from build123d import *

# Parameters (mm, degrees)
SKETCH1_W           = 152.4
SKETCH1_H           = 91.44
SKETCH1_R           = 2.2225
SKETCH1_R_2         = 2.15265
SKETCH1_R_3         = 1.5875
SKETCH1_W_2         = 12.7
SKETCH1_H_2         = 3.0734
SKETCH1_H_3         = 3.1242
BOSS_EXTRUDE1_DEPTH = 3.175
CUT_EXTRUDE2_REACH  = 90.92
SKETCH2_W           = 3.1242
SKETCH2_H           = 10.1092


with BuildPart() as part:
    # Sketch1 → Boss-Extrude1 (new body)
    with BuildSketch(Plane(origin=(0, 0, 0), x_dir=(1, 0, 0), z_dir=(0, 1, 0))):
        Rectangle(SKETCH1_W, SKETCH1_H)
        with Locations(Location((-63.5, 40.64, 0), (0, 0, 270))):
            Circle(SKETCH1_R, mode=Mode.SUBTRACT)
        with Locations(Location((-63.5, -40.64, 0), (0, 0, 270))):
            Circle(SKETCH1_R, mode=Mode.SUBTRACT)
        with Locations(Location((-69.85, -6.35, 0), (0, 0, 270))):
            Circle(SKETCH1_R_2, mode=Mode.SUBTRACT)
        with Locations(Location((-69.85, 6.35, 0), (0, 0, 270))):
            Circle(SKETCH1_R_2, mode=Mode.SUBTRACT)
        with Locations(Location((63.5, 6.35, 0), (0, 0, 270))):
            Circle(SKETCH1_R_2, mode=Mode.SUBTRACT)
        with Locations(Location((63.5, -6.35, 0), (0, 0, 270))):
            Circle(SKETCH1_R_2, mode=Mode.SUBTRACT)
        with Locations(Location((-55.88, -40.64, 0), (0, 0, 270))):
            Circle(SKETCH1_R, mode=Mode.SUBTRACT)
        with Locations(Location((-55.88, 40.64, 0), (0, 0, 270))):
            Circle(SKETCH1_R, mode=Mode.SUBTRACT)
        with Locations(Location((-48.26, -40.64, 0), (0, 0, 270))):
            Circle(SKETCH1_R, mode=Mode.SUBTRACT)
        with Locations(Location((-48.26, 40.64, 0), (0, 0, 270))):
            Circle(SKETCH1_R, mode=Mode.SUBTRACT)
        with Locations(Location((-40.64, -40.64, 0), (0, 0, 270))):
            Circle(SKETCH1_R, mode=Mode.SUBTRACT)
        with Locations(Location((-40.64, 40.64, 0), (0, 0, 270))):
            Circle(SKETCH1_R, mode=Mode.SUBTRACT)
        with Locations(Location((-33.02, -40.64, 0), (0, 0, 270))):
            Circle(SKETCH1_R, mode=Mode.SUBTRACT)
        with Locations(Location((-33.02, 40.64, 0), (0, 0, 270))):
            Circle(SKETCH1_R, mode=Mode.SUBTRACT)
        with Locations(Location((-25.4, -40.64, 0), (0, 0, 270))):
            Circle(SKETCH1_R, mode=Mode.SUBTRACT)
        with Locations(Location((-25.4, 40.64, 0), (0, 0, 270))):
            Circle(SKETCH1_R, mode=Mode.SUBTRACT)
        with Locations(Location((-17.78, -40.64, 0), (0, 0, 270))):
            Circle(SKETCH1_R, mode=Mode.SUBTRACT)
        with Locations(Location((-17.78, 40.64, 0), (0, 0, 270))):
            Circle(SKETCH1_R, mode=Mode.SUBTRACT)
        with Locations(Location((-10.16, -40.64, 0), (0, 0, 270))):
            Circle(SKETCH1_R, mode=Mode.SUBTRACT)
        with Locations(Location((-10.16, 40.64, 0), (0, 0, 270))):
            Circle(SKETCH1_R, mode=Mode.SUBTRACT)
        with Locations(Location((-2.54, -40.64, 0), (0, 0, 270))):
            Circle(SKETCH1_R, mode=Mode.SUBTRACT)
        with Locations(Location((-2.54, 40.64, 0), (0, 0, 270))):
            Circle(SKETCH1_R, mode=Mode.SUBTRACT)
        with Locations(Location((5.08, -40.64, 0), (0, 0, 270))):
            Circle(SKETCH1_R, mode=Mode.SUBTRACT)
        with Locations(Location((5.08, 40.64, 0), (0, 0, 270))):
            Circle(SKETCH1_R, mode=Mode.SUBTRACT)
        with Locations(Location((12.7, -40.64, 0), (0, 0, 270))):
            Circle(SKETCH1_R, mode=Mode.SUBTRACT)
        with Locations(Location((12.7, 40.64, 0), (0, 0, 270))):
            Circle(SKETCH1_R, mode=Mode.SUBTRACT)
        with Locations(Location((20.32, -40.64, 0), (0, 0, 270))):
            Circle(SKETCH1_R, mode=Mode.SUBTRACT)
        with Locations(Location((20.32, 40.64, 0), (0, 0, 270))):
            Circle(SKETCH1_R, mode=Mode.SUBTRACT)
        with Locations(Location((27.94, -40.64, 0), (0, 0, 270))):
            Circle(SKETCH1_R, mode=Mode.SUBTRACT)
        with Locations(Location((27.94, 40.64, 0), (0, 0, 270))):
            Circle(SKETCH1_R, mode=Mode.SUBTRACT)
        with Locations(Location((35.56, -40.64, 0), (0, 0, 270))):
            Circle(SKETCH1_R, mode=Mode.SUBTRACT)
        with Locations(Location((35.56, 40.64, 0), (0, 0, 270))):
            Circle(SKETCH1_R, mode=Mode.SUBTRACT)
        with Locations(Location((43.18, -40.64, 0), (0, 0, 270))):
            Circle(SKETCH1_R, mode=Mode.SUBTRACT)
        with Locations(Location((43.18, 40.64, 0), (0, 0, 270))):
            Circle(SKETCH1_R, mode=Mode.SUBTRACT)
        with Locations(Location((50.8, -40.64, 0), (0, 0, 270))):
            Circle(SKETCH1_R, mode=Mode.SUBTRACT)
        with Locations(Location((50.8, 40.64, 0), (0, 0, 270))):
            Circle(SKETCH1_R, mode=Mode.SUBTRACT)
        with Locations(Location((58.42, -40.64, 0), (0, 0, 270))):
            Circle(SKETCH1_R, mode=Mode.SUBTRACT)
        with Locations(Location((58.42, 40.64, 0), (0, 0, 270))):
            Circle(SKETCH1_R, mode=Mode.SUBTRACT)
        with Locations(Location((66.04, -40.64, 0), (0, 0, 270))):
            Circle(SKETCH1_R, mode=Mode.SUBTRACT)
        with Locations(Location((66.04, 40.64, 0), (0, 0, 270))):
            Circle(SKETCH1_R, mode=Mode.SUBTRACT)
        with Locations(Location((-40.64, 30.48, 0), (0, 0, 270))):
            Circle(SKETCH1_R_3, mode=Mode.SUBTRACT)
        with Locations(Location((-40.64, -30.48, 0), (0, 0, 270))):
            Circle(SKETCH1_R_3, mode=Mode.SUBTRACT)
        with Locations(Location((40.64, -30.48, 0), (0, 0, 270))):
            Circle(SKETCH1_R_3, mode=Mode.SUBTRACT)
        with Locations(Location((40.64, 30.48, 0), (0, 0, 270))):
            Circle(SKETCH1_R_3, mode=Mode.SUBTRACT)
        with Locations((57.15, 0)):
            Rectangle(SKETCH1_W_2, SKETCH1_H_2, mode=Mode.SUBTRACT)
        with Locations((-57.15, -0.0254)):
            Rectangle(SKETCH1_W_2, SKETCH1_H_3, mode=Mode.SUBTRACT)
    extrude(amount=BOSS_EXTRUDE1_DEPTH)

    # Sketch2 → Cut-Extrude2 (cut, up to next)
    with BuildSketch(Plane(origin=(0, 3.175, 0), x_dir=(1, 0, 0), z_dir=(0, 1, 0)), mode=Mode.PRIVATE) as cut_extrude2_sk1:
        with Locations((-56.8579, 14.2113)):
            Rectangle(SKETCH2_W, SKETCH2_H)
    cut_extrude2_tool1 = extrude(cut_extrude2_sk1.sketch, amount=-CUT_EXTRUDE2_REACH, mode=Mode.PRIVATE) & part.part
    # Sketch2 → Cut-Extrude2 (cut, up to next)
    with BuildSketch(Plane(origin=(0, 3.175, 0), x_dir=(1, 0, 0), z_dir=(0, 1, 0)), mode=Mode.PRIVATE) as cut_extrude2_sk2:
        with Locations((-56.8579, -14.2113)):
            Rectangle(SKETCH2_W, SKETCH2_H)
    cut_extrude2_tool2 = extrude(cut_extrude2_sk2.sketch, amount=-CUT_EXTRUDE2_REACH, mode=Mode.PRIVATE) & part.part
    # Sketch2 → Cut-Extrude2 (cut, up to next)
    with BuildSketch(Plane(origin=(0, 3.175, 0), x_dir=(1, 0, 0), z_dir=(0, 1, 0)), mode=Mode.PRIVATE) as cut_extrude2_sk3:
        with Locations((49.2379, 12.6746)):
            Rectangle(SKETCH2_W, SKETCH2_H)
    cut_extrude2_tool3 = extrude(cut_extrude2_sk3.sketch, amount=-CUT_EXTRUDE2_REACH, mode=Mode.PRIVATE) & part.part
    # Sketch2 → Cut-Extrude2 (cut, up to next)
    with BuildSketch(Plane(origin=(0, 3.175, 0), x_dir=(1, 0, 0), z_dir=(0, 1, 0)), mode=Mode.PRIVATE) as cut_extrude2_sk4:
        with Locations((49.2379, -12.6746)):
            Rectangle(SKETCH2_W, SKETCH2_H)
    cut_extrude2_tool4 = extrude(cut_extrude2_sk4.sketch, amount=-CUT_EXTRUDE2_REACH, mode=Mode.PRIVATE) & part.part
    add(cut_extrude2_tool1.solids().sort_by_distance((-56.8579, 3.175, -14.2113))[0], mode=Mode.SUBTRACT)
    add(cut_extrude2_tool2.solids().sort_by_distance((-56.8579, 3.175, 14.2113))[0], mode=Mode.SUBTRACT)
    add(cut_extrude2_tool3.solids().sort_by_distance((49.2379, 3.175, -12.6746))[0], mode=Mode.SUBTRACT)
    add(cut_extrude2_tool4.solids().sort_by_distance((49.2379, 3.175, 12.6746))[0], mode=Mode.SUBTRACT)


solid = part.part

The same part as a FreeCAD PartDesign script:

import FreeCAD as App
import Part
import Sketcher
Q = App.Units.Quantity


def add_polygon(sketch, points):
    """Adds a closed chain of lines whose ends are joined by coincident constraints."""
    first, n = sketch.GeometryCount, len(points)
    for a, b in zip(points, points[1:] + points[:1]):
        sketch.addGeometry(Part.LineSegment(App.Vector(*a, 0), App.Vector(*b, 0)), False)
    for i in range(n):
        sketch.addConstraint(Sketcher.Constraint("Coincident", first + i, 2, first + (i + 1) % n, 1))

doc = App.newDocument("Part")
params = doc.addObject("Spreadsheet::Sheet", "Params")
for row, (alias, value) in enumerate([
    ("sketch1_width", "6 in"),
    ("sketch1_diameter", "0.175 in"),
    ("sketch1_diameter2", "0.125 in"),
    ("sketch1_width2", "0.5 in"),
    ("sketch1_height", "3.6 in"),
    ("pad1_length", "0.125 in"),
    ("sketch2_width", "0.123 in"),
    ("sketch2_height", "0.398 in"),
    ("sketch3_width", "0.123 in"),
    ("sketch3_height", "0.398 in"),
    ("sketch4_width", "0.123 in"),
    ("sketch4_height", "0.398 in"),
    ("sketch5_width", "0.123 in"),
    ("sketch5_height", "0.398 in"),
], start=1):
    params.set(f"A{row}", alias)
    params.set(f"B{row}", "=" + value)
    params.setAlias(f"B{row}", alias)

body = doc.addObject("PartDesign::Body", "Body")

sketch1 = doc.addObject("Sketcher::SketchObject", "Sketch")
body.addObject(sketch1)
sketch1.AttachmentSupport = (doc.XZ_Plane, [""])
sketch1.MapMode = "FlatFace"
add_polygon(sketch1, [(-76.2, -45.7), (-76.2, 45.7), (76.2, 45.7), (76.2, -45.7)])
sketch1.addGeometry(Part.Circle(App.Vector(-63.5, 40.6, 0), App.Vector(0, 0, 1), 2.2), False)
sketch1.addGeometry(Part.Circle(App.Vector(-55.9, 40.6, 0), App.Vector(0, 0, 1), 2.2), False)
sketch1.addGeometry(Part.Circle(App.Vector(-48.3, 40.6, 0), App.Vector(0, 0, 1), 2.2), False)
sketch1.addGeometry(Part.Circle(App.Vector(-40.6, 40.6, 0), App.Vector(0, 0, 1), 2.2), False)
sketch1.addGeometry(Part.Circle(App.Vector(-40.6, 30.5, 0), App.Vector(0, 0, 1), 1.6), False)
sketch1.addGeometry(Part.Circle(App.Vector(-33, 40.6, 0), App.Vector(0, 0, 1), 2.2), False)
sketch1.addGeometry(Part.Circle(App.Vector(-25.4, 40.6, 0), App.Vector(0, 0, 1), 2.2), False)
sketch1.addGeometry(Part.Circle(App.Vector(-17.8, 40.6, 0), App.Vector(0, 0, 1), 2.2), False)
sketch1.addGeometry(Part.Circle(App.Vector(-10.2, 40.6, 0), App.Vector(0, 0, 1), 2.2), False)
sketch1.addGeometry(Part.Circle(App.Vector(-2.5, 40.6, 0), App.Vector(0, 0, 1), 2.2), False)
sketch1.addGeometry(Part.Circle(App.Vector(-69.8, 6.3, 0), App.Vector(0, 0, 1), 2.2), False)
add_polygon(sketch1, [(-50.8, 1.6), (-63.5, 1.6), (-63.5, -1.5), (-50.8, -1.5)])
sketch1.addGeometry(Part.Circle(App.Vector(5.1, 40.6, 0), App.Vector(0, 0, 1), 2.2), False)
sketch1.addGeometry(Part.Circle(App.Vector(12.7, 40.6, 0), App.Vector(0, 0, 1), 2.2), False)
sketch1.addGeometry(Part.Circle(App.Vector(20.3, 40.6, 0), App.Vector(0, 0, 1), 2.2), False)
sketch1.addGeometry(Part.Circle(App.Vector(27.9, 40.6, 0), App.Vector(0, 0, 1), 2.2), False)
sketch1.addGeometry(Part.Circle(App.Vector(35.6, 40.6, 0), App.Vector(0, 0, 1), 2.2), False)
sketch1.addGeometry(Part.Circle(App.Vector(43.2, 40.6, 0), App.Vector(0, 0, 1), 2.2), False)
sketch1.addGeometry(Part.Circle(App.Vector(50.8, 40.6, 0), App.Vector(0, 0, 1), 2.2), False)
sketch1.addGeometry(Part.Circle(App.Vector(58.4, 40.6, 0), App.Vector(0, 0, 1), 2.2), False)
sketch1.addGeometry(Part.Circle(App.Vector(66, 40.6, 0), App.Vector(0, 0, 1), 2.2), False)
sketch1.addGeometry(Part.Circle(App.Vector(40.6, 30.5, 0), App.Vector(0, 0, 1), 1.6), False)
sketch1.addGeometry(Part.Circle(App.Vector(63.5, 6.3, 0), App.Vector(0, 0, 1), 2.2), False)
sketch1.addGeometry(Part.Circle(App.Vector(-69.8, -6.3, 0), App.Vector(0, 0, 1), 2.2), False)
sketch1.addGeometry(Part.Circle(App.Vector(-40.6, -30.5, 0), App.Vector(0, 0, 1), 1.6), False)
sketch1.addGeometry(Part.Circle(App.Vector(-63.5, -40.6, 0), App.Vector(0, 0, 1), 2.2), False)
sketch1.addGeometry(Part.Circle(App.Vector(-55.9, -40.6, 0), App.Vector(0, 0, 1), 2.2), False)
sketch1.addGeometry(Part.Circle(App.Vector(-48.3, -40.6, 0), App.Vector(0, 0, 1), 2.2), False)
sketch1.addGeometry(Part.Circle(App.Vector(-40.6, -40.6, 0), App.Vector(0, 0, 1), 2.2), False)
sketch1.addGeometry(Part.Circle(App.Vector(-33, -40.6, 0), App.Vector(0, 0, 1), 2.2), False)
sketch1.addGeometry(Part.Circle(App.Vector(-25.4, -40.6, 0), App.Vector(0, 0, 1), 2.2), False)
sketch1.addGeometry(Part.Circle(App.Vector(-17.8, -40.6, 0), App.Vector(0, 0, 1), 2.2), False)
sketch1.addGeometry(Part.Circle(App.Vector(-10.2, -40.6, 0), App.Vector(0, 0, 1), 2.2), False)
sketch1.addGeometry(Part.Circle(App.Vector(-2.5, -40.6, 0), App.Vector(0, 0, 1), 2.2), False)
add_polygon(sketch1, [(63.5, 1.5), (50.8, 1.5), (50.8, -1.5), (63.5, -1.5)])
sketch1.addGeometry(Part.Circle(App.Vector(63.5, -6.3, 0), App.Vector(0, 0, 1), 2.2), False)
sketch1.addGeometry(Part.Circle(App.Vector(5.1, -40.6, 0), App.Vector(0, 0, 1), 2.2), False)
sketch1.addGeometry(Part.Circle(App.Vector(12.7, -40.6, 0), App.Vector(0, 0, 1), 2.2), False)
sketch1.addGeometry(Part.Circle(App.Vector(20.3, -40.6, 0), App.Vector(0, 0, 1), 2.2), False)
sketch1.addGeometry(Part.Circle(App.Vector(27.9, -40.6, 0), App.Vector(0, 0, 1), 2.2), False)
sketch1.addGeometry(Part.Circle(App.Vector(40.6, -30.5, 0), App.Vector(0, 0, 1), 1.6), False)
sketch1.addGeometry(Part.Circle(App.Vector(35.6, -40.6, 0), App.Vector(0, 0, 1), 2.2), False)
sketch1.addGeometry(Part.Circle(App.Vector(43.2, -40.6, 0), App.Vector(0, 0, 1), 2.2), False)
sketch1.addGeometry(Part.Circle(App.Vector(50.8, -40.6, 0), App.Vector(0, 0, 1), 2.2), False)
sketch1.addGeometry(Part.Circle(App.Vector(58.4, -40.6, 0), App.Vector(0, 0, 1), 2.2), False)
sketch1.addGeometry(Part.Circle(App.Vector(66, -40.6, 0), App.Vector(0, 0, 1), 2.2), False)
sketch1.addConstraint([
    Sketcher.Constraint("Vertical", 0),
    Sketcher.Constraint("Horizontal", 1),
    Sketcher.Constraint("Vertical", 2),
    Sketcher.Constraint("Horizontal", 3),
    Sketcher.Constraint("Horizontal", 15),
    Sketcher.Constraint("Vertical", 16),
    Sketcher.Constraint("Horizontal", 17),
    Sketcher.Constraint("Vertical", 18),
    Sketcher.Constraint("Horizontal", 41),
    Sketcher.Constraint("Vertical", 42),
    Sketcher.Constraint("Horizontal", 43),
    Sketcher.Constraint("Vertical", 44),
    Sketcher.Constraint("Equal", 4, 5),
    Sketcher.Constraint("Equal", 5, 6),
    Sketcher.Constraint("Equal", 6, 7),
    Sketcher.Constraint("Equal", 7, 9),
    Sketcher.Constraint("Equal", 9, 10),
    Sketcher.Constraint("Equal", 10, 11),
    Sketcher.Constraint("Equal", 11, 12),
    Sketcher.Constraint("Equal", 12, 13),
    Sketcher.Constraint("Equal", 13, 19),
    Sketcher.Constraint("Equal", 19, 20),
    Sketcher.Constraint("Equal", 20, 21),
    Sketcher.Constraint("Equal", 21, 22),
    Sketcher.Constraint("Equal", 22, 23),
    Sketcher.Constraint("Equal", 23, 24),
    Sketcher.Constraint("Equal", 24, 25),
    Sketcher.Constraint("Equal", 25, 26),
    Sketcher.Constraint("Equal", 26, 27),
    Sketcher.Constraint("Equal", 8, 28),
    Sketcher.Constraint("Equal", 14, 29),
    Sketcher.Constraint("Equal", 29, 30),
    Sketcher.Constraint("Equal", 28, 31),
    Sketcher.Constraint("Equal", 27, 32),
    Sketcher.Constraint("Equal", 32, 33),
    Sketcher.Constraint("Equal", 33, 34),
    Sketcher.Constraint("Equal", 34, 35),
    Sketcher.Constraint("Equal", 35, 36),
    Sketcher.Constraint("Equal", 36, 37),
    Sketcher.Constraint("Equal", 37, 38),
    Sketcher.Constraint("Equal", 38, 39),
    Sketcher.Constraint("Equal", 39, 40),
    Sketcher.Constraint("Equal", 30, 45),
    Sketcher.Constraint("Equal", 40, 46),
    Sketcher.Constraint("Equal", 46, 47),
    Sketcher.Constraint("Equal", 47, 48),
    Sketcher.Constraint("Equal", 48, 49),
    Sketcher.Constraint("Equal", 31, 50),
    Sketcher.Constraint("Equal", 49, 51),
    Sketcher.Constraint("Equal", 51, 52),
    Sketcher.Constraint("Equal", 52, 53),
    Sketcher.Constraint("Equal", 53, 54),
    Sketcher.Constraint("Equal", 54, 55),
    Sketcher.Constraint("Symmetric", 28, 3, 31, 3, -1, 1),
    Sketcher.Constraint("Symmetric", 8, 3, 50, 3, -1, 1),
    Sketcher.Constraint("Symmetric", 0, 2, 2, 2, -1, 1),
    Sketcher.Constraint("Symmetric", 17, 2, 41, 2, -1, 1),
    Sketcher.Constraint("Symmetric", 8, 3, 28, 3, -2),
    Sketcher.Constraint("Symmetric", 16, 2, 43, 2, -2),
    Sketcher.Constraint("Symmetric", 14, 3, 30, 3, -1),
    Sketcher.Constraint("Symmetric", 4, 3, 32, 3, -1),
    Sketcher.Constraint("Symmetric", 5, 3, 33, 3, -1),
    Sketcher.Constraint("Symmetric", 6, 3, 34, 3, -1),
    Sketcher.Constraint("Symmetric", 7, 3, 35, 3, -1),
    Sketcher.Constraint("Symmetric", 9, 3, 36, 3, -1),
    Sketcher.Constraint("Symmetric", 10, 3, 37, 3, -1),
    Sketcher.Constraint("Symmetric", 11, 3, 38, 3, -1),
    Sketcher.Constraint("Symmetric", 12, 3, 39, 3, -1),
    Sketcher.Constraint("Symmetric", 13, 3, 40, 3, -1),
    Sketcher.Constraint("Symmetric", 29, 3, 45, 3, -1),
    Sketcher.Constraint("Symmetric", 19, 3, 46, 3, -1),
    Sketcher.Constraint("Symmetric", 20, 3, 47, 3, -1),
    Sketcher.Constraint("Symmetric", 21, 3, 48, 3, -1),
    Sketcher.Constraint("Symmetric", 22, 3, 49, 3, -1),
    Sketcher.Constraint("Symmetric", 23, 3, 51, 3, -1),
    Sketcher.Constraint("Symmetric", 24, 3, 52, 3, -1),
    Sketcher.Constraint("Symmetric", 25, 3, 53, 3, -1),
    Sketcher.Constraint("Symmetric", 26, 3, 54, 3, -1),
    Sketcher.Constraint("Symmetric", 27, 3, 55, 3, -1),
    Sketcher.Constraint("Horizontal", 4, 3, 5, 3),
    Sketcher.Constraint("Horizontal", 5, 3, 6, 3),
    Sketcher.Constraint("Horizontal", 6, 3, 7, 3),
    Sketcher.Constraint("Horizontal", 7, 3, 9, 3),
    Sketcher.Constraint("Horizontal", 9, 3, 10, 3),
    Sketcher.Constraint("Horizontal", 10, 3, 11, 3),
    Sketcher.Constraint("Horizontal", 11, 3, 12, 3),
    Sketcher.Constraint("Horizontal", 12, 3, 13, 3),
    Sketcher.Constraint("Horizontal", 13, 3, 19, 3),
    Sketcher.Constraint("Horizontal", 19, 3, 20, 3),
    Sketcher.Constraint("Horizontal", 20, 3, 21, 3),
    Sketcher.Constraint("Horizontal", 21, 3, 22, 3),
    Sketcher.Constraint("Horizontal", 22, 3, 23, 3),
    Sketcher.Constraint("Horizontal", 23, 3, 24, 3),
    Sketcher.Constraint("Horizontal", 24, 3, 25, 3),
    Sketcher.Constraint("Horizontal", 25, 3, 26, 3),
    Sketcher.Constraint("Horizontal", 26, 3, 27, 3),
    Sketcher.Constraint("Horizontal", 14, 3, 29, 3),
    Sketcher.Constraint("Vertical", 7, 3, 8, 3),
    Sketcher.Constraint("Vertical", 32, 3, 15, 2),
    Sketcher.Constraint("Vertical", 53, 3, 41, 2),
    Sketcher.Constraint("Vertical", 45, 3, 43, 2),
    Sketcher.Constraint("DistanceX", 1, 1, 1, 2, Q("6 in")),
    Sketcher.Constraint("Diameter", 4, Q("0.175 in")),
    Sketcher.Constraint("Diameter", 8, Q("0.125 in")),
    Sketcher.Constraint("DistanceX", 15, 2, 15, 1, Q("0.5 in")),
    Sketcher.Constraint("DistanceY", 0, 1, 0, 2, Q("3.6 in")),
    Sketcher.Constraint("DistanceX", 10, 3, -1, 1, Q("1 in")),
    Sketcher.Constraint("DistanceX", -1, 1, 25, 3, Q("2 in")),
    Sketcher.Constraint("DistanceX", 50, 3, 55, 3, Q("1 in")),
    Sketcher.Constraint("Diameter", 14, Q("0.1695 in")),
    Sketcher.Constraint("DistanceY", -1, 1, 4, 3, Q("1.6 in")),
    Sketcher.Constraint("DistanceX", 5, 3, -1, 1, Q("2.2 in")),
    Sketcher.Constraint("DistanceX", 6, 3, -1, 1, Q("1.9 in")),
    Sketcher.Constraint("DistanceX", 7, 3, -1, 1, Q("1.6 in")),
    Sketcher.Constraint("DistanceY", -1, 1, 8, 3, Q("1.2 in")),
    Sketcher.Constraint("DistanceX", 9, 3, -1, 1, Q("1.3 in")),
    Sketcher.Constraint("DistanceX", 11, 3, -1, 1, Q("0.7 in")),
    Sketcher.Constraint("DistanceX", 12, 3, -1, 1, Q("0.4 in")),
    Sketcher.Constraint("DistanceX", 13, 3, -1, 1, Q("0.1 in")),
    Sketcher.Constraint("DistanceX", -1, 1, 19, 3, Q("0.2 in")),
    Sketcher.Constraint("DistanceX", -1, 1, 20, 3, Q("0.5 in")),
    Sketcher.Constraint("DistanceX", -1, 1, 21, 3, Q("0.8 in")),
    Sketcher.Constraint("DistanceX", -1, 1, 22, 3, Q("1.1 in")),
    Sketcher.Constraint("DistanceX", -1, 1, 23, 3, Q("1.4 in")),
    Sketcher.Constraint("DistanceX", -1, 1, 24, 3, Q("1.7 in")),
    Sketcher.Constraint("DistanceX", -1, 1, 26, 3, Q("2.3 in")),
    Sketcher.Constraint("DistanceY", 30, 3, 14, 3, Q("0.5 in")),
    Sketcher.Constraint("DistanceY", 16, 2, 16, 1, Q("0.123 in")),
    Sketcher.Constraint("DistanceY", 42, 2, 42, 1, Q("0.121 in")),
    Sketcher.Constraint("DistanceX", 14, 3, -1, 1, Q("2.75 in")),
])
sketch1.setExpression("Constraints[113]", "Params.sketch1_width")
sketch1.setExpression("Constraints[114]", "Params.sketch1_diameter")
sketch1.setExpression("Constraints[115]", "Params.sketch1_diameter2")
sketch1.setExpression("Constraints[116]", "Params.sketch1_width2")
sketch1.setExpression("Constraints[117]", "Params.sketch1_height")
pad1 = doc.addObject("PartDesign::Pad", "Pad")
body.addObject(pad1)
pad1.Profile = sketch1
pad1.setExpression("Length", "Params.pad1_length")
pad1.Reversed = True

sketch2 = doc.addObject("Sketcher::SketchObject", "Sketch001")
body.addObject(sketch2)
sketch2.AttachmentSupport = (doc.XZ_Plane, [""])
sketch2.MapMode = "FlatFace"
sketch2.AttachmentOffset = App.Placement(App.Vector(0, 0, -0.125 * 25.4), App.Rotation())
add_polygon(sketch2, [(-58.4, -19.3), (-58.4, -9.2), (-55.3, -9.2), (-55.3, -19.3)])
sketch2.addConstraint([
    Sketcher.Constraint("Vertical", 0),
    Sketcher.Constraint("Horizontal", 1),
    Sketcher.Constraint("Vertical", 2),
    Sketcher.Constraint("Horizontal", 3),
    Sketcher.Constraint("DistanceX", 0, 2, -1, 1, Q("2.3 in")),
    Sketcher.Constraint("DistanceX", 1, 1, 1, 2, Q("0.123 in")),
    Sketcher.Constraint("DistanceY", 0, 1, 0, 2, Q("0.398 in")),
    Sketcher.Constraint("DistanceY", 0, 2, -1, 1, Q("0.3605 in")),
])
sketch2.setExpression("Constraints[9]", "Params.sketch2_width")
sketch2.setExpression("Constraints[10]", "Params.sketch2_height")
pocket1 = doc.addObject("PartDesign::Pocket", "Pocket")
body.addObject(pocket1)
pocket1.Profile = sketch2
pocket1.Type = "UpToFirst"
pocket1.Reversed = True

sketch3 = doc.addObject("Sketcher::SketchObject", "Sketch002")
body.addObject(sketch3)
sketch3.AttachmentSupport = (doc.XZ_Plane, [""])
sketch3.MapMode = "FlatFace"
sketch3.AttachmentOffset = App.Placement(App.Vector(0, 0, -0.125 * 25.4), App.Rotation())
add_polygon(sketch3, [(-58.4, 9.2), (-58.4, 19.3), (-55.3, 19.3), (-55.3, 9.2)])
sketch3.addConstraint([
    Sketcher.Constraint("Vertical", 0),
    Sketcher.Constraint("Horizontal", 1),
    Sketcher.Constraint("Vertical", 2),
    Sketcher.Constraint("Horizontal", 3),
    Sketcher.Constraint("DistanceX", 0, 2, -1, 1, Q("2.3 in")),
    Sketcher.Constraint("DistanceX", 1, 1, 1, 2, Q("0.123 in")),
    Sketcher.Constraint("DistanceY", 0, 1, 0, 2, Q("0.398 in")),
    Sketcher.Constraint("DistanceY", -1, 1, 0, 2, Q("0.7585 in")),
])
sketch3.setExpression("Constraints[9]", "Params.sketch3_width")
sketch3.setExpression("Constraints[10]", "Params.sketch3_height")
pocket2 = doc.addObject("PartDesign::Pocket", "Pocket001")
body.addObject(pocket2)
pocket2.Profile = sketch3
pocket2.Type = "UpToFirst"
pocket2.Reversed = True

sketch4 = doc.addObject("Sketcher::SketchObject", "Sketch003")
body.addObject(sketch4)
sketch4.AttachmentSupport = (doc.XZ_Plane, [""])
sketch4.MapMode = "FlatFace"
sketch4.AttachmentOffset = App.Placement(App.Vector(0, 0, -0.125 * 25.4), App.Rotation())
add_polygon(sketch4, [(47.7, -17.7), (47.7, -7.6), (50.8, -7.6), (50.8, -17.7)])
sketch4.addConstraint([
    Sketcher.Constraint("Vertical", 0),
    Sketcher.Constraint("Horizontal", 1),
    Sketcher.Constraint("Vertical", 2),
    Sketcher.Constraint("Horizontal", 3),
    Sketcher.Constraint("DistanceX", -1, 1, 1, 2, Q("2 in")),
    Sketcher.Constraint("DistanceY", 0, 2, -1, 1, Q("0.3 in")),
    Sketcher.Constraint("DistanceX", 1, 1, 1, 2, Q("0.123 in")),
    Sketcher.Constraint("DistanceY", 0, 1, 0, 2, Q("0.398 in")),
])
sketch4.setExpression("Constraints[10]", "Params.sketch4_width")
sketch4.setExpression("Constraints[11]", "Params.sketch4_height")
pocket3 = doc.addObject("PartDesign::Pocket", "Pocket002")
body.addObject(pocket3)
pocket3.Profile = sketch4
pocket3.Type = "UpToFirst"
pocket3.Reversed = True

sketch5 = doc.addObject("Sketcher::SketchObject", "Sketch004")
body.addObject(sketch5)
sketch5.AttachmentSupport = (doc.XZ_Plane, [""])
sketch5.MapMode = "FlatFace"
sketch5.AttachmentOffset = App.Placement(App.Vector(0, 0, -0.125 * 25.4), App.Rotation())
add_polygon(sketch5, [(47.7, 7.6), (47.7, 17.7), (50.8, 17.7), (50.8, 7.6)])
sketch5.addConstraint([
    Sketcher.Constraint("Vertical", 0),
    Sketcher.Constraint("Horizontal", 1),
    Sketcher.Constraint("Vertical", 2),
    Sketcher.Constraint("Horizontal", 3),
    Sketcher.Constraint("DistanceX", -1, 1, 1, 2, Q("2 in")),
    Sketcher.Constraint("DistanceY", -1, 1, 2, 2, Q("0.3 in")),
    Sketcher.Constraint("DistanceX", 1, 1, 1, 2, Q("0.123 in")),
    Sketcher.Constraint("DistanceY", 0, 1, 0, 2, Q("0.398 in")),
])
sketch5.setExpression("Constraints[10]", "Params.sketch5_width")
sketch5.setExpression("Constraints[11]", "Params.sketch5_height")
pocket4 = doc.addObject("PartDesign::Pocket", "Pocket003")
body.addObject(pocket4)
pocket4.Profile = sketch5
pocket4.Type = "UpToFirst"
pocket4.Reversed = True

doc.recompute()
